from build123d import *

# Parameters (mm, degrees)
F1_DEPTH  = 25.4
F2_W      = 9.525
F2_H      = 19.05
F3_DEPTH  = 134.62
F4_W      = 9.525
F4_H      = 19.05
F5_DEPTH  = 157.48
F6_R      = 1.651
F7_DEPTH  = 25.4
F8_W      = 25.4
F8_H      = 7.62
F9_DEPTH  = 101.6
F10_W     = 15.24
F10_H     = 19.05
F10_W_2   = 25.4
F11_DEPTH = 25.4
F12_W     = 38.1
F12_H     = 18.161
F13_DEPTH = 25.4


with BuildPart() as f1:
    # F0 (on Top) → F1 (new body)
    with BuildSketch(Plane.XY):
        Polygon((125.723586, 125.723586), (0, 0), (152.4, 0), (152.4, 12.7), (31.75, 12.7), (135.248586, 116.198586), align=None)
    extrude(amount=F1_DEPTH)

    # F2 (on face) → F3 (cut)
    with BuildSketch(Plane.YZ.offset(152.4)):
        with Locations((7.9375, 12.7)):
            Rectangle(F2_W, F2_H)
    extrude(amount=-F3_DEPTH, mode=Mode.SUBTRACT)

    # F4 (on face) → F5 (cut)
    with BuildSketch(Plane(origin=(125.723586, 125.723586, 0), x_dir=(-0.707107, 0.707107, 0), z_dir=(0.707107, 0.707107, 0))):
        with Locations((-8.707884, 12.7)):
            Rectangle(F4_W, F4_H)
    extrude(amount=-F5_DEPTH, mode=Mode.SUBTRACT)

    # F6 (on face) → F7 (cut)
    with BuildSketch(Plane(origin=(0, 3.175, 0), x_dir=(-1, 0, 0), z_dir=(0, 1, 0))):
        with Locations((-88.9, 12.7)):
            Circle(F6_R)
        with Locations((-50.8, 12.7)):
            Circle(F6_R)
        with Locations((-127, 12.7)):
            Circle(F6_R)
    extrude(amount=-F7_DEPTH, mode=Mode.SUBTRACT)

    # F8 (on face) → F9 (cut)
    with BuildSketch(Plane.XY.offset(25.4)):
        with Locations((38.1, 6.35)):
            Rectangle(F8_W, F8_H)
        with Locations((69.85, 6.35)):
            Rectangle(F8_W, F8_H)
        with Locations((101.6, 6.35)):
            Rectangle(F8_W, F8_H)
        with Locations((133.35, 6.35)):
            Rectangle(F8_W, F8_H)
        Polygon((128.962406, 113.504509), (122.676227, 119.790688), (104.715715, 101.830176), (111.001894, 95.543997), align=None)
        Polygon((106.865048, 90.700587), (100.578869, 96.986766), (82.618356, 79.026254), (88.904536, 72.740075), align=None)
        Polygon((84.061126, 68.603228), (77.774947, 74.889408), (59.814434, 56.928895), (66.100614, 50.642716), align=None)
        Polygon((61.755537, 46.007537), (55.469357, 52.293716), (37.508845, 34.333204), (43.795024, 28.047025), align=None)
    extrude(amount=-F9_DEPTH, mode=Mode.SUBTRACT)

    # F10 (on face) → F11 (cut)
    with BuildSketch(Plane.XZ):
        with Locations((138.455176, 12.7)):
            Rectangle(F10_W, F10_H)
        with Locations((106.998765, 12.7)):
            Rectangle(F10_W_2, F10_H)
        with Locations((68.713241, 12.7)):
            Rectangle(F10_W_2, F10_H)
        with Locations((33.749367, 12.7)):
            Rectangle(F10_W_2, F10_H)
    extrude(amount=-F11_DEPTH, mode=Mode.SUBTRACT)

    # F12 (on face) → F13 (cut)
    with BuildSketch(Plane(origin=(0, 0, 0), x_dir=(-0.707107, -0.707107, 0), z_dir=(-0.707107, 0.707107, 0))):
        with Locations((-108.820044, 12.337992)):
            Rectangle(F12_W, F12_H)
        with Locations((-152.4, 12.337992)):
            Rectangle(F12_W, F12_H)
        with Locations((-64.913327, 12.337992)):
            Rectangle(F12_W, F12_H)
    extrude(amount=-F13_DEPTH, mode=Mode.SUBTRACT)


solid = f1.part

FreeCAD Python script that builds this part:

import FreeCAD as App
import Part
import Sketcher

V = App.Vector
Q = App.Units.Quantity


def add_polygon(sketch, points):
    """Adds a closed chain of lines whose ends are joined by coincident constraints."""
    first, n = sketch.GeometryCount, len(points)
    for a, b in zip(points, points[1:] + points[:1]):
        sketch.addGeometry(Part.LineSegment(App.Vector(*a, 0), App.Vector(*b, 0)), False)
    for i in range(n):
        sketch.addConstraint(Sketcher.Constraint("Coincident", first + i, 2, first + (i + 1) % n, 1))

doc = App.newDocument("Part")
params = doc.addObject("Spreadsheet::Sheet", "Params")
for row, (alias, value) in enumerate([
    ("sketch1_width", "6 in"),
    ("sketch1_length", "7 in"),
    ("sketch1_height", "0.5 in"),
    ("sketch1_width2", "4.75 in"),
    ("pad1_length", "1 in"),
    ("sketch2_height", "0.75 in"),
    ("sketch2_width", "0.375 in"),
    ("pocket1_length", "5.3 in"),
    ("sketch3_height", "0.75 in"),
    ("sketch3_width", "0.375 in"),
    ("pocket2_length", "6.2 in"),
    ("sketch4_diameter", "0.13 in"),
    ("pocket3_length", "1 in"),
    ("sketch5_width", "1 in"),
    ("sketch5_length", "1 in"),
    ("sketch5_height", "0.3 in"),
    ("sketch5_length2", "0.35 in"),
    ("pocket4_length", "4 in"),
    ("sketch6_width", "1 in"),
    ("sketch6_width2", "0.6 in"),
    ("sketch6_height", "0.75 in"),
    ("pocket5_length", "1 in"),
    ("sketch7_width", "1.5 in"),
    ("sketch7_height", "0.715 in"),
    ("pocket6_length", "1 in"),
], start=1):
    params.set(f"A{row}", alias)
    params.set(f"B{row}", "=" + value)
    params.setAlias(f"B{row}", alias)

body = doc.addObject("PartDesign::Body", "Body")

sketch1 = body.newObject("Sketcher::SketchObject", "Sketch")
sketch1.AttachmentSupport = (doc.getObject("XY_Plane"), [""])
sketch1.MapMode = "FlatFace"
add_polygon(sketch1, [(126, 126), (0, 0), (152, 0), (152, 13), (32, 13), (135, 116)])
sketch1.addConstraint([
    Sketcher.Constraint("Horizontal", 1),
    Sketcher.Constraint("Vertical", 2),
    Sketcher.Constraint("Horizontal", 3),
    Sketcher.Constraint("Coincident", 0, 2, -1, 1),
    Sketcher.Constraint("Parallel", 0, 4),
    Sketcher.Constraint("Perpendicular", 4, 5),
    Sketcher.Constraint("DistanceX", 1, 1, 1, 2, Q("6 in")),
    Sketcher.Constraint("Distance", 0, Q("7 in")),
    Sketcher.Constraint("DistanceY", 2, 1, 2, 2, Q("0.5 in")),
    Sketcher.Constraint("Angle", 0, Q("-135 deg")),
    Sketcher.Constraint("DistanceX", 3, 2, 3, 1, Q("4.75 in")),
])
sketch1.setExpression("Constraints[12]", "Params.sketch1_width")
sketch1.setExpression("Constraints[13]", "Params.sketch1_length")
sketch1.setExpression("Constraints[14]", "Params.sketch1_height")
sketch1.setExpression("Constraints[16]", "Params.sketch1_width2")
pad1 = body.newObject("PartDesign::Pad", "Pad")
pad1.Profile = sketch1
pad1.setExpression("Length", "Params.pad1_length")

sketch2 = body.newObject("Sketcher::SketchObject", "Sketch001")
sketch2.AttachmentSupport = (doc.getObject("YZ_Plane"), [""])
sketch2.MapMode = "FlatFace"
sketch2.AttachmentOffset = App.Placement(V(0, 0, 6 * 25.4), App.Rotation())
add_polygon(sketch2, [(3, 22), (3, 3), (13, 3), (13, 22)])
sketch2.addConstraint([
    Sketcher.Constraint("Vertical", 0),
    Sketcher.Constraint("Horizontal", 1),
    Sketcher.Constraint("Vertical", 2),
    Sketcher.Constraint("Horizontal", 3),
    Sketcher.Constraint("DistanceY", 0, 2, 0, 1, Q("0.75 in")),
    Sketcher.Constraint("DistanceX", -1, 1, 1, 2, Q("0.5 in")),
    Sketcher.Constraint("DistanceX", 1, 1, 1, 2, Q("0.375 in")),
    Sketcher.Constraint("DistanceY", -1, 1, 0, 2, Q("0.125 in")),
])
sketch2.setExpression("Constraints[8]", "Params.sketch2_height")
sketch2.setExpression("Constraints[10]", "Params.sketch2_width")
pocket1 = body.newObject("PartDesign::Pocket", "Pocket")
pocket1.Profile = sketch2
pocket1.setExpression("Length", "Params.pocket1_length")

sketch3 = body.newObject("Sketcher::SketchObject", "Sketch002")
sketch3.Placement = App.Placement(V(125.723586, 125.723586, 0), App.Rotation(V(-0.707106781, 0.707106781, 0), V(0, 0, 0.999999999), V(0.707106781, 0.707106781, 0), "ZXY"))
add_polygon(sketch3, [(-13, 22), (-13, 3), (-4, 3), (-4, 22)])
sketch3.addConstraint([
    Sketcher.Constraint("Vertical", 0),
    Sketcher.Constraint("Horizontal", 1),
    Sketcher.Constraint("Vertical", 2),
    Sketcher.Constraint("Horizontal", 3),
    Sketcher.Constraint("DistanceY", 0, 2, 0, 1, Q("0.75 in")),
    Sketcher.Constraint("DistanceX", 1, 1, 1, 2, Q("0.375 in")),
    Sketcher.Constraint("DistanceY", -1, 1, 0, 2, Q("0.125 in")),
    Sketcher.Constraint("DistanceX", 0, 2, -1, 1, Q("13.470384 mm")),
])
sketch3.setExpression("Constraints[8]", "Params.sketch3_height")
sketch3.setExpression("Constraints[9]", "Params.sketch3_width")
pocket2 = body.newObject("PartDesign::Pocket", "Pocket001")
pocket2.Profile = sketch3
pocket2.setExpression("Length", "Params.pocket2_length")

sketch4 = body.newObject("Sketcher::SketchObject", "Sketch003")
sketch4.AttachmentSupport = (doc.getObject("XZ_Plane"), [""])
sketch4.MapMode = "FlatFace"
sketch4.AttachmentOffset = App.Placement(V(0, 0, -0.125 * 25.4), App.Rotation())
sketch4.addGeometry([
    Part.Circle(V(88.9, 12.7, 0), V(0, 0, 1), 1.7),
    Part.Circle(V(50.8, 12.7, 0), V(0, 0, 1), 1.7),
    Part.Circle(V(127, 12.7, 0), V(0, 0, 1), 1.7),
], False)
sketch4.addConstraint([
    Sketcher.Constraint("Equal", 0, 1),
    Sketcher.Constraint("Equal", 1, 2),
    Sketcher.Constraint("Horizontal", 0, 3, 1, 3),
    Sketcher.Constraint("Horizontal", 1, 3, 2, 3),
    Sketcher.Constraint("Diameter", 0, Q("0.13 in")),
    Sketcher.Constraint("DistanceX", -1, 1, 1, 3, Q("2 in")),
    Sketcher.Constraint("DistanceX", -1, 1, 2, 3, Q("5 in")),
    Sketcher.Constraint("DistanceX", -1, 1, 0, 3, Q("3.5 in")),
    Sketcher.Constraint("DistanceY", -1, 1, 0, 3, Q("0.5 in")),
])
sketch4.setExpression("Constraints[4]", "Params.sketch4_diameter")
pocket3 = body.newObject("PartDesign::Pocket", "Pocket002")
pocket3.Profile = sketch4
pocket3.setExpression("Length", "Params.pocket3_length")
pocket3.Reversed = True

sketch5 = body.newObject("Sketcher::SketchObject", "Sketch004")
sketch5.AttachmentSupport = (doc.getObject("XY_Plane"), [""])
sketch5.MapMode = "FlatFace"
sketch5.AttachmentOffset = App.Placement(V(0, 0, 1 * 25.4), App.Rotation())
add_polygon(sketch5, [(25, 10), (25, 3), (51, 3), (51, 10)])
add_polygon(sketch5, [(57, 10), (57, 3), (83, 3), (83, 10)])
add_polygon(sketch5, [(89, 10), (89, 3), (114, 3), (114, 10)])
add_polygon(sketch5, [(121, 10), (121, 3), (146, 3), (146, 10)])
add_polygon(sketch5, [(129, 114), (123, 120), (105, 102), (111, 96)])
add_polygon(sketch5, [(107, 91), (101, 97), (83, 79), (89, 73)])
add_polygon(sketch5, [(84, 69), (78, 75), (60, 57), (66, 51)])
add_polygon(sketch5, [(62, 46), (55, 52), (38, 34), (44, 28)])
sketch5.addConstraint([
    Sketcher.Constraint("Vertical", 0),
    Sketcher.Constraint("Horizontal", 1),
    Sketcher.Constraint("Vertical", 2),
    Sketcher.Constraint("Horizontal", 3),
    Sketcher.Constraint("Vertical", 4),
    Sketcher.Constraint("Horizontal", 5),
    Sketcher.Constraint("Vertical", 6),
    Sketcher.Constraint("Horizontal", 7),
    Sketcher.Constraint("Vertical", 8),
    Sketcher.Constraint("Horizontal", 9),
    Sketcher.Constraint("Vertical", 10),
    Sketcher.Constraint("Horizontal", 11),
    Sketcher.Constraint("Vertical", 12),
    Sketcher.Constraint("Horizontal", 13),
    Sketcher.Constraint("Vertical", 14),
    Sketcher.Constraint("Horizontal", 15),
    Sketcher.Constraint("Perpendicular", 16, 17),
    Sketcher.Constraint("Perpendicular", 17, 18),
    Sketcher.Constraint("Perpendicular", 18, 19),
    Sketcher.Constraint("Perpendicular", 19, 20),
    Sketcher.Constraint("Perpendicular", 20, 21),
    Sketcher.Constraint("Perpendicular", 21, 22),
    Sketcher.Constraint("Perpendicular", 22, 23),
    Sketcher.Constraint("Perpendicular", 23, 24),
    Sketcher.Constraint("Perpendicular", 24, 25),
    Sketcher.Constraint("Perpendicular", 25, 26),
    Sketcher.Constraint("Perpendicular", 26, 27),
    Sketcher.Constraint("Perpendicular", 27, 28),
    Sketcher.Constraint("Perpendicular", 28, 29),
    Sketcher.Constraint("Perpendicular", 29, 30),
    Sketcher.Constraint("Perpendicular", 30, 31),
    Sketcher.Constraint("Horizontal", 1, 2, 4, 2),
    Sketcher.Constraint("Horizontal", 3, 2, 6, 2),
    Sketcher.Constraint("Horizontal", 5, 2, 8, 2),
    Sketcher.Constraint("Horizontal", 7, 2, 10, 2),
    Sketcher.Constraint("Horizontal", 9, 2, 12, 2),
    Sketcher.Constraint("Horizontal", 11, 2, 14, 2),
    Sketcher.Constraint("Equal", 3, 5),
    Sketcher.Constraint("Equal", 7, 9),
    Sketcher.Constraint("Equal", 11, 13),
    Sketcher.Constraint("Equal", 18, 20),
    Sketcher.Constraint("Equal", 19, 21),
    Sketcher.Constraint("Equal", 22, 24),
    Sketcher.Constraint("Equal", 23, 25),
    Sketcher.Constraint("Equal", 26, 28),
    Sketcher.Constraint("Equal", 27, 29),
    Sketcher.Constraint("DistanceX", 1, 1, 1, 2, Q("1 in")),
    Sketcher.Constraint("Distance", 17, Q("1 in")),
    Sketcher.Constraint("DistanceY", 0, 2, 0, 1, Q("0.3 in")),
    Sketcher.Constraint("DistanceX", -1, 1, 0, 2, Q("1 in")),
    Sketcher.Constraint("Angle", 16, Q("135 deg")),
    Sketcher.Constraint("DistanceY", -1, 1, 0, 2, Q("0.1 in")),
    Sketcher.Constraint("DistanceX", -1, 1, 8, 2, Q("3.5 in")),
    Sketcher.Constraint("DistanceX", 5, 2, 12, 2, Q("1.5 in")),
    Sketcher.Constraint("Distance", 16, Q("0.35 in")),
    Sketcher.Constraint("DistanceX", -1, 1, 4, 2, Q("2.25 in")),
    Sketcher.Constraint("DistanceY", 26, 2, 28, 2, Q("0.065 in")),
    Sketcher.Constraint("DistanceY", 22, 2, 17, 2, Q("29.090101 mm")),
    Sketcher.Constraint("DistanceX", 24, 2, 23, 2, Q("29.090101 mm")),
    Sketcher.Constraint("DistanceX", 28, 2, 21, 2, Q("27.148999 mm")),
    Sketcher.Constraint("DistanceY", -1, 1, 16, 2, Q("119.790688 mm")),
    Sketcher.Constraint("DistanceX", -1, 1, 20, 2, Q("100.578869 mm")),
    Sketcher.Constraint("DistanceY", -1, 1, 24, 2, Q("74.889408 mm")),
    Sketcher.Constraint("DistanceX", 20, 2, 16, 2, Q("22.097358 mm")),
])
sketch5.setExpression("Constraints[78]", "Params.sketch5_width")
sketch5.setExpression("Constraints[79]", "Params.sketch5_length")
sketch5.setExpression("Constraints[80]", "Params.sketch5_height")
sketch5.setExpression("Constraints[86]", "Params.sketch5_length2")
pocket4 = body.newObject("PartDesign::Pocket", "Pocket003")
pocket4.Profile = sketch5
pocket4.setExpression("Length", "Params.pocket4_length")

sketch6 = body.newObject("Sketcher::SketchObject", "Sketch005")
sketch6.AttachmentSupport = (doc.getObject("XZ_Plane"), [""])
sketch6.MapMode = "FlatFace"
add_polygon(sketch6, [(131, 22), (131, 3), (146, 3), (146, 22)])
add_polygon(sketch6, [(94, 22), (94, 3), (120, 3), (120, 22)])
add_polygon(sketch6, [(56, 22), (56, 3), (81, 3), (81, 22)])
add_polygon(sketch6, [(21, 22), (21, 3), (46, 3), (46, 22)])
sketch6.addConstraint([
    Sketcher.Constraint("Vertical", 0),
    Sketcher.Constraint("Horizontal", 1),
    Sketcher.Constraint("Vertical", 2),
    Sketcher.Constraint("Horizontal", 3),
    Sketcher.Constraint("Vertical", 4),
    Sketcher.Constraint("Horizontal", 5),
    Sketcher.Constraint("Vertical", 6),
    Sketcher.Constraint("Horizontal", 7),
    Sketcher.Constraint("Vertical", 8),
    Sketcher.Constraint("Horizontal", 9),
    Sketcher.Constraint("Vertical", 10),
    Sketcher.Constraint("Horizontal", 11),
    Sketcher.Constraint("Vertical", 12),
    Sketcher.Constraint("Horizontal", 13),
    Sketcher.Constraint("Vertical", 14),
    Sketcher.Constraint("Horizontal", 15),
    Sketcher.Constraint("Horizontal", 1, 2, 4, 2),
    Sketcher.Constraint("Horizontal", 3, 2, 6, 2),
    Sketcher.Constraint("Horizontal", 5, 2, 8, 2),
    Sketcher.Constraint("Horizontal", 7, 2, 10, 2),
    Sketcher.Constraint("Horizontal", 9, 2, 12, 2),
    Sketcher.Constraint("Horizontal", 11, 2, 14, 2),
    Sketcher.Constraint("Equal", 7, 9),
    Sketcher.Constraint("Equal", 11, 13),
    Sketcher.Constraint("DistanceX", 5, 1, 5, 2, Q("1 in")),
    Sketcher.Constraint("DistanceX", 1, 1, 1, 2, Q("0.6 in")),
    Sketcher.Constraint("DistanceY", 0, 2, 0, 1, Q("0.75 in")),
    Sketcher.Constraint("DistanceY", -1, 1, 0, 2, Q("0.125 in")),
    Sketcher.Constraint("DistanceX", 12, 2, 4, 2, Q("73.249398 mm")),
    Sketcher.Constraint("DistanceX", -1, 1, 8, 2, Q("56.013241 mm")),
    Sketcher.Constraint("DistanceX", 4, 2, 0, 2, Q("36.536411 mm")),
    Sketcher.Constraint("DistanceX", -1, 1, 0, 2, Q("130.835176 mm")),
])
sketch6.setExpression("Constraints[40]", "Params.sketch6_width")
sketch6.setExpression("Constraints[41]", "Params.sketch6_width2")
sketch6.setExpression("Constraints[42]", "Params.sketch6_height")
pocket5 = body.newObject("PartDesign::Pocket", "Pocket004")
pocket5.Profile = sketch6
pocket5.setExpression("Length", "Params.pocket5_length")

sketch7 = body.newObject("Sketcher::SketchObject", "Sketch006")
sketch7.Placement = App.Placement(V(0, 0, 0), App.Rotation(V(-0.707106781, -0.707106781, 0), V(0, 0, 0.999999999), V(-0.707106781, 0.707106781, 0), "ZXY"))
add_polygon(sketch7, [(-128, 21), (-128, 3), (-90, 3), (-90, 21)])
add_polygon(sketch7, [(-171, 21), (-171, 3), (-133, 3), (-133, 21)])
add_polygon(sketch7, [(-84, 21), (-84, 3), (-46, 3), (-46, 21)])
sketch7.addConstraint([
    Sketcher.Constraint("Vertical", 0),
    Sketcher.Constraint("Horizontal", 1),
    Sketcher.Constraint("Vertical", 2),
    Sketcher.Constraint("Horizontal", 3),
    Sketcher.Constraint("Vertical", 4),
    Sketcher.Constraint("Horizontal", 5),
    Sketcher.Constraint("Vertical", 6),
    Sketcher.Constraint("Horizontal", 7),
    Sketcher.Constraint("Vertical", 8),
    Sketcher.Constraint("Horizontal", 9),
    Sketcher.Constraint("Vertical", 10),
    Sketcher.Constraint("Horizontal", 11),
    Sketcher.Constraint("Horizontal", 1, 2, 4, 2),
    Sketcher.Constraint("Horizontal", 3, 2, 6, 2),
    Sketcher.Constraint("Horizontal", 5, 2, 8, 2),
    Sketcher.Constraint("Horizontal", 7, 2, 10, 2),
    Sketcher.Constraint("Equal", 3, 5),
    Sketcher.Constraint("Equal", 7, 9),
    Sketcher.Constraint("DistanceX", 1, 1, 1, 2, Q("1.5 in")),
    Sketcher.Constraint("DistanceY", 0, 2, 0, 1, Q("0.715 in")),
    Sketcher.Constraint("DistanceX", 4, 2, -1, 1, Q("6.75 in")),
    Sketcher.Constraint("DistanceY", -1, 1, 0, 2, Q("3.257492 mm")),
    Sketcher.Constraint("DistanceX", 0, 2, -1, 1, Q("127.870044 mm")),
    Sketcher.Constraint("DistanceX", 8, 2, -1, 1, Q("83.963327 mm")),
])
sketch7.setExpression("Constraints[30]", "Params.sketch7_width")
sketch7.setExpression("Constraints[31]", "Params.sketch7_height")
pocket6 = body.newObject("PartDesign::Pocket", "Pocket005")
pocket6.Profile = sketch7
pocket6.setExpression("Length", "Params.pocket6_length")

doc.recompute()
